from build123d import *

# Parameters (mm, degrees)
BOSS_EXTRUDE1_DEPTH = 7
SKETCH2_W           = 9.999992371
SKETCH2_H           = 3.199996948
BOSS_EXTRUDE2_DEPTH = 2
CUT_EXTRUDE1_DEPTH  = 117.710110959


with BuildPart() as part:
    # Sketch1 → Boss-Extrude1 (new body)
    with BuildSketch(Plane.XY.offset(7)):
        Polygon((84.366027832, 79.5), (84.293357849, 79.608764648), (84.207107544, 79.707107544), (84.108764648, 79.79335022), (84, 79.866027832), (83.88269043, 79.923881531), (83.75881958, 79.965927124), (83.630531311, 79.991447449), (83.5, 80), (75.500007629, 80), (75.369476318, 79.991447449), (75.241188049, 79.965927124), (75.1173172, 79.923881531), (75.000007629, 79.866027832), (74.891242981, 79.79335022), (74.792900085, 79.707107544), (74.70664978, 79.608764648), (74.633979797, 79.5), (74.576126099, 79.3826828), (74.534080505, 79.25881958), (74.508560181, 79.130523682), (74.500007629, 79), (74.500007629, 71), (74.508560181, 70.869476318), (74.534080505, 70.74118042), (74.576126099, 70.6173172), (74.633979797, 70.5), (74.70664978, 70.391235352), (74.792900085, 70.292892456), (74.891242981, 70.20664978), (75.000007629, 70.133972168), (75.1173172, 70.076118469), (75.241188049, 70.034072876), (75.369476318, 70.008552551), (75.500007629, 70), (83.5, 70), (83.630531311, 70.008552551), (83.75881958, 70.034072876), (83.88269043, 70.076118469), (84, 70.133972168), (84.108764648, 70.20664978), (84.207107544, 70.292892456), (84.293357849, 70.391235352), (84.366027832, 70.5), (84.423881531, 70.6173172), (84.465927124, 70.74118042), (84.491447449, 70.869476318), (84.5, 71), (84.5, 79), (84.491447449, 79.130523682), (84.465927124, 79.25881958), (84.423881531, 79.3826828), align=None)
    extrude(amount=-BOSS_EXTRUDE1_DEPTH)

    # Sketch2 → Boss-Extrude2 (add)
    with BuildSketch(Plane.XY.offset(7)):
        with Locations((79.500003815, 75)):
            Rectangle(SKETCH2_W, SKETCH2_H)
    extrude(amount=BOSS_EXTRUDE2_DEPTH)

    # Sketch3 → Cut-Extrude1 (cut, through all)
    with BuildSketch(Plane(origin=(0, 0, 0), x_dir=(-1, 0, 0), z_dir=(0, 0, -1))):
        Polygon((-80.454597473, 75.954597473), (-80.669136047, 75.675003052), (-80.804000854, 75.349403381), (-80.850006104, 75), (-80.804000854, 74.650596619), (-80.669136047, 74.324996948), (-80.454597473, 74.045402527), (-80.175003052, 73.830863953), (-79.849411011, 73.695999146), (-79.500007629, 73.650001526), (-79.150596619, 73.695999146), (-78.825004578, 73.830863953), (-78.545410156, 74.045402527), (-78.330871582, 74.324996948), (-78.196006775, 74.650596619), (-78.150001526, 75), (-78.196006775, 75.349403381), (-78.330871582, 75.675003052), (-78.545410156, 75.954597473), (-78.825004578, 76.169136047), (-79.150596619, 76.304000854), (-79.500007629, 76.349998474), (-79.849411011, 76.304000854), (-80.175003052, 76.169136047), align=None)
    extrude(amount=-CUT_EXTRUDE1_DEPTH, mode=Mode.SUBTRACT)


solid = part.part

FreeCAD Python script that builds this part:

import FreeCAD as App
import Part
import Sketcher
from FreeCAD import Vector

doc = App.newDocument("Part")
params = doc.addObject("Spreadsheet::Sheet", "Params")
for row, (alias, value) in enumerate([
    ("sketch1_height", "8 mm"),
    ("sketch1_height2", "8 mm"),
    ("pad1_length", "7 mm"),
    ("pad2_length", "2 mm"),
], start=1):
    params.set(f"A{row}", alias)
    params.set(f"B{row}", "=" + value)
    params.setAlias(f"B{row}", alias)

body = doc.addObject("PartDesign::Body", "Body")

sketch1 = doc.addObject("Sketcher::SketchObject", "Sketch")
body.addObject(sketch1)
sketch1.AttachmentSupport = (doc.XY_Plane, [""])
sketch1.MapMode = "FlatFace"
sketch1.AttachmentOffset = App.Placement(Vector(0, 0, 7), App.Rotation())
sketch1.addGeometry(Part.LineSegment(Vector(84.366028, 79.5, 0), Vector(84.293358, 79.608765, 0)), False)
sketch1.addGeometry(Part.LineSegment(Vector(84.293358, 79.608765, 0), Vector(84.207108, 79.707108, 0)), False)
sketch1.addGeometry(Part.LineSegment(Vector(84.207108, 79.707108, 0), Vector(84.108765, 79.79335, 0)), False)
sketch1.addGeometry(Part.LineSegment(Vector(84.108765, 79.79335, 0), Vector(84, 79.866028, 0)), False)
sketch1.addGeometry(Part.LineSegment(Vector(84, 79.866028, 0), Vector(83.88269, 79.923882, 0)), False)
sketch1.addGeometry(Part.LineSegment(Vector(83.88269, 79.923882, 0), Vector(83.75882, 79.965927, 0)), False)
sketch1.addGeometry(Part.LineSegment(Vector(83.75882, 79.965927, 0), Vector(83.630531, 79.991447, 0)), False)
sketch1.addGeometry(Part.LineSegment(Vector(83.630531, 79.991447, 0), Vector(83.5, 80, 0)), False)
sketch1.addGeometry(Part.LineSegment(Vector(83.5, 80, 0), Vector(75.500008, 80, 0)), False)
sketch1.addGeometry(Part.LineSegment(Vector(75.500008, 80, 0), Vector(75.369476, 79.991447, 0)), False)
sketch1.addGeometry(Part.LineSegment(Vector(75.369476, 79.991447, 0), Vector(75.241188, 79.965927, 0)), False)
sketch1.addGeometry(Part.LineSegment(Vector(75.241188, 79.965927, 0), Vector(75.117317, 79.923882, 0)), False)
sketch1.addGeometry(Part.LineSegment(Vector(75.117317, 79.923882, 0), Vector(75.000008, 79.866028, 0)), False)
sketch1.addGeometry(Part.LineSegment(Vector(75.000008, 79.866028, 0), Vector(74.891243, 79.79335, 0)), False)
sketch1.addGeometry(Part.LineSegment(Vector(74.891243, 79.79335, 0), Vector(74.7929, 79.707108, 0)), False)
sketch1.addGeometry(Part.LineSegment(Vector(74.7929, 79.707108, 0), Vector(74.70665, 79.608765, 0)), False)
sketch1.addGeometry(Part.LineSegment(Vector(74.70665, 79.608765, 0), Vector(74.63398, 79.5, 0)), False)
sketch1.addGeometry(Part.LineSegment(Vector(74.63398, 79.5, 0), Vector(74.576126, 79.382683, 0)), False)
sketch1.addGeometry(Part.LineSegment(Vector(74.576126, 79.382683, 0), Vector(74.534081, 79.25882, 0)), False)
sketch1.addGeometry(Part.LineSegment(Vector(74.534081, 79.25882, 0), Vector(74.50856, 79.130524, 0)), False)
sketch1.addGeometry(Part.LineSegment(Vector(74.50856, 79.130524, 0), Vector(74.500008, 79, 0)), False)
sketch1.addGeometry(Part.LineSegment(Vector(74.500008, 79, 0), Vector(74.500008, 71, 0)), False)
sketch1.addGeometry(Part.LineSegment(Vector(74.500008, 71, 0), Vector(74.50856, 70.869476, 0)), False)
sketch1.addGeometry(Part.LineSegment(Vector(74.50856, 70.869476, 0), Vector(74.534081, 70.74118, 0)), False)
sketch1.addGeometry(Part.LineSegment(Vector(74.534081, 70.74118, 0), Vector(74.576126, 70.617317, 0)), False)
sketch1.addGeometry(Part.LineSegment(Vector(74.576126, 70.617317, 0), Vector(74.63398, 70.5, 0)), False)
sketch1.addGeometry(Part.LineSegment(Vector(74.63398, 70.5, 0), Vector(74.70665, 70.391235, 0)), False)
sketch1.addGeometry(Part.LineSegment(Vector(74.70665, 70.391235, 0), Vector(74.7929, 70.292892, 0)), False)
sketch1.addGeometry(Part.LineSegment(Vector(74.7929, 70.292892, 0), Vector(74.891243, 70.20665, 0)), False)
sketch1.addGeometry(Part.LineSegment(Vector(74.891243, 70.20665, 0), Vector(75.000008, 70.133972, 0)), False)
sketch1.addGeometry(Part.LineSegment(Vector(75.000008, 70.133972, 0), Vector(75.117317, 70.076118, 0)), False)
sketch1.addGeometry(Part.LineSegment(Vector(75.117317, 70.076118, 0), Vector(75.241188, 70.034073, 0)), False)
sketch1.addGeometry(Part.LineSegment(Vector(75.241188, 70.034073, 0), Vector(75.369476, 70.008553, 0)), False)
sketch1.addGeometry(Part.LineSegment(Vector(75.369476, 70.008553, 0), Vector(75.500008, 70, 0)), False)
sketch1.addGeometry(Part.LineSegment(Vector(75.500008, 70, 0), Vector(83.5, 70, 0)), False)
sketch1.addGeometry(Part.LineSegment(Vector(83.5, 70, 0), Vector(83.630531, 70.008553, 0)), False)
sketch1.addGeometry(Part.LineSegment(Vector(83.630531, 70.008553, 0), Vector(83.75882, 70.034073, 0)), False)
sketch1.addGeometry(Part.LineSegment(Vector(83.75882, 70.034073, 0), Vector(83.88269, 70.076118, 0)), False)
sketch1.addGeometry(Part.LineSegment(Vector(83.88269, 70.076118, 0), Vector(84, 70.133972, 0)), False)
sketch1.addGeometry(Part.LineSegment(Vector(84, 70.133972, 0), Vector(84.108765, 70.20665, 0)), False)
sketch1.addGeometry(Part.LineSegment(Vector(84.108765, 70.20665, 0), Vector(84.207108, 70.292892, 0)), False)
sketch1.addGeometry(Part.LineSegment(Vector(84.207108, 70.292892, 0), Vector(84.293358, 70.391235, 0)), False)
sketch1.addGeometry(Part.LineSegment(Vector(84.293358, 70.391235, 0), Vector(84.366028, 70.5, 0)), False)
sketch1.addGeometry(Part.LineSegment(Vector(84.366028, 70.5, 0), Vector(84.423882, 70.617317, 0)), False)
sketch1.addGeometry(Part.LineSegment(Vector(84.423882, 70.617317, 0), Vector(84.465927, 70.74118, 0)), False)
sketch1.addGeometry(Part.LineSegment(Vector(84.465927, 70.74118, 0), Vector(84.491447, 70.869476, 0)), False)
sketch1.addGeometry(Part.LineSegment(Vector(84.491447, 70.869476, 0), Vector(84.5, 71, 0)), False)
sketch1.addGeometry(Part.LineSegment(Vector(84.5, 71, 0), Vector(84.5, 79, 0)), False)
sketch1.addGeometry(Part.LineSegment(Vector(84.5, 79, 0), Vector(84.491447, 79.130524, 0)), False)
sketch1.addGeometry(Part.LineSegment(Vector(84.491447, 79.130524, 0), Vector(84.465927, 79.25882, 0)), False)
sketch1.addGeometry(Part.LineSegment(Vector(84.465927, 79.25882, 0), Vector(84.423882, 79.382683, 0)), False)
sketch1.addGeometry(Part.LineSegment(Vector(84.423882, 79.382683, 0), Vector(84.366028, 79.5, 0)), False)
sketch1.addConstraint(Sketcher.Constraint("Coincident", 0, 2, 1, 1))
sketch1.addConstraint(Sketcher.Constraint("Coincident", 1, 2, 2, 1))
sketch1.addConstraint(Sketcher.Constraint("Coincident", 2, 2, 3, 1))
sketch1.addConstraint(Sketcher.Constraint("Coincident", 3, 2, 4, 1))
sketch1.addConstraint(Sketcher.Constraint("Coincident", 4, 2, 5, 1))
sketch1.addConstraint(Sketcher.Constraint("Coincident", 5, 2, 6, 1))
sketch1.addConstraint(Sketcher.Constraint("Coincident", 6, 2, 7, 1))
sketch1.addConstraint(Sketcher.Constraint("Coincident", 7, 2, 8, 1))
sketch1.addConstraint(Sketcher.Constraint("Coincident", 8, 2, 9, 1))
sketch1.addConstraint(Sketcher.Constraint("Coincident", 9, 2, 10, 1))
sketch1.addConstraint(Sketcher.Constraint("Coincident", 10, 2, 11, 1))
sketch1.addConstraint(Sketcher.Constraint("Coincident", 11, 2, 12, 1))
sketch1.addConstraint(Sketcher.Constraint("Coincident", 12, 2, 13, 1))
sketch1.addConstraint(Sketcher.Constraint("Coincident", 13, 2, 14, 1))
sketch1.addConstraint(Sketcher.Constraint("Coincident", 14, 2, 15, 1))
sketch1.addConstraint(Sketcher.Constraint("Coincident", 15, 2, 16, 1))
sketch1.addConstraint(Sketcher.Constraint("Coincident", 16, 2, 17, 1))
sketch1.addConstraint(Sketcher.Constraint("Coincident", 17, 2, 18, 1))
sketch1.addConstraint(Sketcher.Constraint("Coincident", 18, 2, 19, 1))
sketch1.addConstraint(Sketcher.Constraint("Coincident", 19, 2, 20, 1))
sketch1.addConstraint(Sketcher.Constraint("Coincident", 20, 2, 21, 1))
sketch1.addConstraint(Sketcher.Constraint("Coincident", 21, 2, 22, 1))
sketch1.addConstraint(Sketcher.Constraint("Coincident", 22, 2, 23, 1))
sketch1.addConstraint(Sketcher.Constraint("Coincident", 23, 2, 24, 1))
sketch1.addConstraint(Sketcher.Constraint("Coincident", 24, 2, 25, 1))
sketch1.addConstraint(Sketcher.Constraint("Coincident", 25, 2, 26, 1))
sketch1.addConstraint(Sketcher.Constraint("Coincident", 26, 2, 27, 1))
sketch1.addConstraint(Sketcher.Constraint("Coincident", 27, 2, 28, 1))
sketch1.addConstraint(Sketcher.Constraint("Coincident", 28, 2, 29, 1))
sketch1.addConstraint(Sketcher.Constraint("Coincident", 29, 2, 30, 1))
sketch1.addConstraint(Sketcher.Constraint("Coincident", 30, 2, 31, 1))
sketch1.addConstraint(Sketcher.Constraint("Coincident", 31, 2, 32, 1))
sketch1.addConstraint(Sketcher.Constraint("Coincident", 32, 2, 33, 1))
sketch1.addConstraint(Sketcher.Constraint("Coincident", 33, 2, 34, 1))
sketch1.addConstraint(Sketcher.Constraint("Coincident", 34, 2, 35, 1))
sketch1.addConstraint(Sketcher.Constraint("Coincident", 35, 2, 36, 1))
sketch1.addConstraint(Sketcher.Constraint("Coincident", 36, 2, 37, 1))
sketch1.addConstraint(Sketcher.Constraint("Coincident", 37, 2, 38, 1))
sketch1.addConstraint(Sketcher.Constraint("Coincident", 38, 2, 39, 1))
sketch1.addConstraint(Sketcher.Constraint("Coincident", 39, 2, 40, 1))
sketch1.addConstraint(Sketcher.Constraint("Coincident", 40, 2, 41, 1))
sketch1.addConstraint(Sketcher.Constraint("Coincident", 41, 2, 42, 1))
sketch1.addConstraint(Sketcher.Constraint("Coincident", 42, 2, 43, 1))
sketch1.addConstraint(Sketcher.Constraint("Coincident", 43, 2, 44, 1))
sketch1.addConstraint(Sketcher.Constraint("Coincident", 44, 2, 45, 1))
sketch1.addConstraint(Sketcher.Constraint("Coincident", 45, 2, 46, 1))
sketch1.addConstraint(Sketcher.Constraint("Coincident", 46, 2, 47, 1))
sketch1.addConstraint(Sketcher.Constraint("Coincident", 47, 2, 48, 1))
sketch1.addConstraint(Sketcher.Constraint("Coincident", 48, 2, 49, 1))
sketch1.addConstraint(Sketcher.Constraint("Coincident", 49, 2, 50, 1))
sketch1.addConstraint(Sketcher.Constraint("Coincident", 50, 2, 51, 1))
sketch1.addConstraint(Sketcher.Constraint("Coincident", 51, 2, 0, 1))
sketch1.addConstraint(Sketcher.Constraint("Horizontal", 8))
sketch1.addConstraint(Sketcher.Constraint("Vertical", 21))
sketch1.addConstraint(Sketcher.Constraint("Horizontal", 34))
sketch1.addConstraint(Sketcher.Constraint("Vertical", 47))
sketch1.addConstraint(Sketcher.Constraint("DistanceY", 21, 2, 21, 1, 8.0))
sketch1.addConstraint(Sketcher.Constraint("DistanceY", 47, 1, 47, 2, 8.0))
sketch1.addConstraint(Sketcher.Constraint("DistanceX", -1, 1, 3, 2, 84.0))
sketch1.addConstraint(Sketcher.Constraint("DistanceY", -1, 1, 7, 2, 80.0))
sketch1.addConstraint(Sketcher.Constraint("DistanceY", -1, 1, 20, 2, 79.0))
sketch1.addConstraint(Sketcher.Constraint("DistanceY", -1, 1, 33, 2, 70.0))
sketch1.addConstraint(Sketcher.Constraint("DistanceX", -1, 1, 38, 2, 84.0))
sketch1.addConstraint(Sketcher.Constraint("DistanceY", -1, 1, 46, 2, 71.0))
sketch1.addConstraint(Sketcher.Constraint("DistanceX", -1, 1, 7, 2, 83.5))
sketch1.addConstraint(Sketcher.Constraint("DistanceY", -1, 1, 16, 2, 79.5))
sketch1.addConstraint(Sketcher.Constraint("DistanceY", -1, 1, 25, 2, 70.5))
sketch1.addConstraint(Sketcher.Constraint("DistanceX", -1, 1, 34, 2, 83.5))
sketch1.addConstraint(Sketcher.Constraint("DistanceY", -1, 1, 42, 2, 70.5))
sketch1.addConstraint(Sketcher.Constraint("DistanceX", -1, 1, 46, 2, 84.5))
sketch1.addConstraint(Sketcher.Constraint("DistanceY", -1, 1, 51, 2, 79.5))
sketch1.addConstraint(Sketcher.Constraint("DistanceX", 12, 2, 8, 2, 0.5))
sketch1.addConstraint(Sketcher.Constraint("DistanceX", 29, 2, 33, 2, 0.5))
sketch1.addConstraint(Sketcher.Constraint("Distance", 2, 0.130802))
sketch1.addConstraint(Sketcher.Constraint("Distance", 4, 0.1308))
sketch1.addConstraint(Sketcher.Constraint("Distance", 12, 0.1308))
sketch1.addConstraint(Sketcher.Constraint("Distance", 14, 0.130802))
sketch1.addConstraint(Sketcher.Constraint("Distance", 28, 0.130802))
sketch1.addConstraint(Sketcher.Constraint("Distance", 30, 0.1308))
sketch1.addConstraint(Sketcher.Constraint("Distance", 38, 0.1308))
sketch1.addConstraint(Sketcher.Constraint("Distance", 40, 0.130802))
sketch1.addConstraint(Sketcher.Constraint("DistanceX", -1, 1, 14, 2, 74.7929))
sketch1.addConstraint(Sketcher.Constraint("DistanceX", -1, 1, 27, 2, 74.7929))
sketch1.addConstraint(Sketcher.Constraint("DistanceY", 3, 2, 5, 2, 0.099899))
sketch1.addConstraint(Sketcher.Constraint("DistanceY", 12, 2, 10, 2, 0.099899))
sketch1.addConstraint(Sketcher.Constraint("DistanceX", 18, 2, 16, 2, 0.099899))
sketch1.addConstraint(Sketcher.Constraint("DistanceX", 23, 2, 25, 2, 0.099899))
sketch1.addConstraint(Sketcher.Constraint("DistanceY", 31, 2, 29, 2, 0.099899))
sketch1.addConstraint(Sketcher.Constraint("DistanceY", 36, 2, 38, 2, 0.099899))
sketch1.addConstraint(Sketcher.Constraint("DistanceX", 42, 2, 44, 2, 0.099899))
sketch1.addConstraint(Sketcher.Constraint("DistanceX", 51, 2, 49, 2, 0.099899))
sketch1.addConstraint(Sketcher.Constraint("Distance", 7, 0.130811))
sketch1.addConstraint(Sketcher.Constraint("Distance", 9, 0.130811))
sketch1.addConstraint(Sketcher.Constraint("Distance", 19, 0.130809))
sketch1.addConstraint(Sketcher.Constraint("Distance", 23, 0.130809))
sketch1.addConstraint(Sketcher.Constraint("Distance", 33, 0.130811))
sketch1.addConstraint(Sketcher.Constraint("Distance", 35, 0.130811))
sketch1.addConstraint(Sketcher.Constraint("Distance", 45, 0.130809))
sketch1.addConstraint(Sketcher.Constraint("Distance", 49, 0.130809))
sketch1.addConstraint(Sketcher.Constraint("DistanceX", 8, 2, 8, 1, 7.999992))
sketch1.addConstraint(Sketcher.Constraint("DistanceX", 34, 1, 34, 2, 7.999992))
sketch1.addConstraint(Sketcher.Constraint("DistanceY", -1, 1, 2, 2, 79.79335))
sketch1.addConstraint(Sketcher.Constraint("DistanceX", -1, 1, 4, 2, 83.88269))
sketch1.addConstraint(Sketcher.Constraint("DistanceY", -1, 1, 4, 2, 79.923882))
sketch1.addConstraint(Sketcher.Constraint("DistanceX", -1, 1, 5, 2, 83.75882))
sketch1.addConstraint(Sketcher.Constraint("DistanceX", -1, 1, 6, 2, 83.630531))
sketch1.addConstraint(Sketcher.Constraint("DistanceX", -1, 1, 10, 2, 75.241188))
sketch1.addConstraint(Sketcher.Constraint("DistanceY", -1, 1, 11, 2, 79.923882))
sketch1.addConstraint(Sketcher.Constraint("DistanceY", -1, 1, 13, 2, 79.79335))
sketch1.addConstraint(Sketcher.Constraint("DistanceX", -1, 1, 15, 2, 74.70665))
sketch1.addConstraint(Sketcher.Constraint("DistanceX", -1, 1, 16, 2, 74.63398))
sketch1.addConstraint(Sketcher.Constraint("DistanceY", -1, 1, 18, 2, 79.25882))
sketch1.addConstraint(Sketcher.Constraint("DistanceX", -1, 1, 19, 2, 74.50856))
sketch1.addConstraint(Sketcher.Constraint("DistanceX", -1, 1, 22, 2, 74.50856))
sketch1.addConstraint(Sketcher.Constraint("DistanceX", -1, 1, 23, 2, 74.534081))
sketch1.addConstraint(Sketcher.Constraint("DistanceY", -1, 1, 23, 2, 70.74118))
sketch1.addConstraint(Sketcher.Constraint("DistanceX", -1, 1, 26, 2, 74.70665))
sketch1.addConstraint(Sketcher.Constraint("DistanceY", -1, 1, 28, 2, 70.20665))
sketch1.addConstraint(Sketcher.Constraint("DistanceY", -1, 1, 30, 2, 70.076118))
sketch1.addConstraint(Sketcher.Constraint("DistanceX", -1, 1, 31, 2, 75.241188))
sketch1.addConstraint(Sketcher.Constraint("DistanceX", -1, 1, 35, 2, 83.630531))
sketch1.addConstraint(Sketcher.Constraint("DistanceX", -1, 1, 36, 2, 83.75882))
sketch1.addConstraint(Sketcher.Constraint("DistanceX", -1, 1, 37, 2, 83.88269))
sketch1.addConstraint(Sketcher.Constraint("DistanceY", -1, 1, 37, 2, 70.076118))
sketch1.addConstraint(Sketcher.Constraint("DistanceY", -1, 1, 39, 2, 70.20665))
sketch1.addConstraint(Sketcher.Constraint("DistanceX", -1, 1, 43, 2, 84.423882))
sketch1.addConstraint(Sketcher.Constraint("DistanceY", -1, 1, 44, 2, 70.74118))
sketch1.addConstraint(Sketcher.Constraint("DistanceY", -1, 1, 49, 2, 79.25882))
sketch1.addConstraint(Sketcher.Constraint("DistanceX", -1, 1, 50, 2, 84.423882))
sketch1.addConstraint(Sketcher.Constraint("DistanceX", 1, 2, 0, 2, 0.08625))
sketch1.addConstraint(Sketcher.Constraint("DistanceY", 1, 2, 3, 2, 0.15892))
sketch1.addConstraint(Sketcher.Constraint("DistanceX", 5, 2, 0, 2, 0.534538))
sketch1.addConstraint(Sketcher.Constraint("DistanceX", 9, 2, 8, 2, 0.130531))
sketch1.addConstraint(Sketcher.Constraint("DistanceY", 10, 2, 9, 2, 0.02552))
sketch1.addConstraint(Sketcher.Constraint("DistanceY", 14, 2, 12, 2, 0.15892))
sketch1.addConstraint(Sketcher.Constraint("DistanceY", 17, 2, 15, 2, 0.226082))
sketch1.addConstraint(Sketcher.Constraint("DistanceX", 17, 2, 12, 2, 0.423882))
sketch1.addConstraint(Sketcher.Constraint("DistanceY", 19, 2, 17, 2, 0.252159))
sketch1.addConstraint(Sketcher.Constraint("DistanceX", 20, 2, 17, 2, 0.076118))
sketch1.addConstraint(Sketcher.Constraint("DistanceY", 24, 2, 22, 2, 0.252159))
sketch1.addConstraint(Sketcher.Constraint("DistanceX", 21, 2, 24, 2, 0.076118))
sketch1.addConstraint(Sketcher.Constraint("DistanceY", 26, 2, 24, 2, 0.226082))
sketch1.addConstraint(Sketcher.Constraint("DistanceY", 29, 2, 27, 2, 0.15892))
sketch1.addConstraint(Sketcher.Constraint("DistanceX", 29, 2, 30, 2, 0.11731))
sketch1.addConstraint(Sketcher.Constraint("DistanceX", 31, 2, 32, 2, 0.128288))
sketch1.addConstraint(Sketcher.Constraint("DistanceY", 38, 2, 40, 2, 0.15892))
sketch1.addConstraint(Sketcher.Constraint("DistanceX", 40, 2, 41, 2, 0.08625))
sketch1.addConstraint(Sketcher.Constraint("DistanceX", 36, 2, 41, 2, 0.534538))
sketch1.addConstraint(Sketcher.Constraint("DistanceX", 41, 2, 42, 2, 0.07267))
sketch1.addConstraint(Sketcher.Constraint("DistanceY", 41, 2, 43, 2, 0.226082))
sketch1.addConstraint(Sketcher.Constraint("DistanceX", 44, 2, 45, 2, 0.02552))
sketch1.addConstraint(Sketcher.Constraint("DistanceY", 43, 2, 45, 2, 0.252159))
sketch1.addConstraint(Sketcher.Constraint("DistanceX", 0, 2, 48, 2, 0.19809))
sketch1.addConstraint(Sketcher.Constraint("DistanceY", 48, 2, 0, 2, 0.478241))
sketch1.addConstraint(Sketcher.Constraint("DistanceX", 49, 2, 48, 2, 0.02552))
sketch1.addConstraint(Sketcher.Constraint("DistanceY", 48, 2, 50, 2, 0.252159))
sketch1.setExpression("Constraints[56]", "Params.sketch1_height")
sketch1.setExpression("Constraints[57]", "Params.sketch1_height2")
pad1 = doc.addObject("PartDesign::Pad", "Pad")
body.addObject(pad1)
pad1.Profile = sketch1
pad1.setExpression("Length", "Params.pad1_length")
pad1.Reversed = True

sketch2 = doc.addObject("Sketcher::SketchObject", "Sketch001")
body.addObject(sketch2)
sketch2.AttachmentSupport = (doc.XY_Plane, [""])
sketch2.MapMode = "FlatFace"
sketch2.AttachmentOffset = App.Placement(Vector(0, 0, 7), App.Rotation())
sketch2.addGeometry(Part.LineSegment(Vector(74.5, 76.6, 0), Vector(74.5, 73.4, 0)), False)
sketch2.addGeometry(Part.LineSegment(Vector(74.5, 73.4, 0), Vector(84.5, 73.4, 0)), False)
sketch2.addGeometry(Part.LineSegment(Vector(84.5, 73.4, 0), Vector(84.5, 76.6, 0)), False)
sketch2.addGeometry(Part.LineSegment(Vector(84.5, 76.6, 0), Vector(74.5, 76.6, 0)), False)
sketch2.addConstraint(Sketcher.Constraint("Coincident", 0, 2, 1, 1))
sketch2.addConstraint(Sketcher.Constraint("Coincident", 1, 2, 2, 1))
sketch2.addConstraint(Sketcher.Constraint("Coincident", 2, 2, 3, 1))
sketch2.addConstraint(Sketcher.Constraint("Coincident", 3, 2, 0, 1))
sketch2.addConstraint(Sketcher.Constraint("Vertical", 0))
sketch2.addConstraint(Sketcher.Constraint("Horizontal", 1))
sketch2.addConstraint(Sketcher.Constraint("Vertical", 2))
sketch2.addConstraint(Sketcher.Constraint("Horizontal", 3))
sketch2.addConstraint(Sketcher.Constraint("DistanceY", -1, 1, 0, 2, 73.400002))
sketch2.addConstraint(Sketcher.Constraint("DistanceX", -1, 1, 1, 2, 84.5))
sketch2.addConstraint(Sketcher.Constraint("DistanceY", -1, 1, 2, 2, 76.599998))
sketch2.addConstraint(Sketcher.Constraint("DistanceX", 1, 1, 1, 2, 9.999992))
pad2 = doc.addObject("PartDesign::Pad", "Pad001")
body.addObject(pad2)
pad2.Profile = sketch2
pad2.setExpression("Length", "Params.pad2_length")

sketch3 = doc.addObject("Sketcher::SketchObject", "Sketch002")
body.addObject(sketch3)
sketch3.AttachmentSupport = (doc.XY_Plane, [""])
sketch3.MapMode = "FlatFace"
sketch3.addGeometry(Part.LineSegment(Vector(80.45, 75.95, 0), Vector(80.67, 75.68, 0)), False)
sketch3.addGeometry(Part.LineSegment(Vector(80.67, 75.68, 0), Vector(80.8, 75.35, 0)), False)
sketch3.addGeometry(Part.LineSegment(Vector(80.8, 75.35, 0), Vector(80.85, 75, 0)), False)
sketch3.addGeometry(Part.LineSegment(Vector(80.85, 75, 0), Vector(80.8, 74.65, 0)), False)
sketch3.addGeometry(Part.LineSegment(Vector(80.8, 74.65, 0), Vector(80.67, 74.32, 0)), False)
sketch3.addGeometry(Part.LineSegment(Vector(80.67, 74.32, 0), Vector(80.45, 74.05, 0)), False)
sketch3.addGeometry(Part.LineSegment(Vector(80.45, 74.05, 0), Vector(80.18, 73.83, 0)), False)
sketch3.addGeometry(Part.LineSegment(Vector(80.18, 73.83, 0), Vector(79.85, 73.7, 0)), False)
sketch3.addGeometry(Part.LineSegment(Vector(79.85, 73.7, 0), Vector(79.5, 73.65, 0)), False)
sketch3.addGeometry(Part.LineSegment(Vector(79.5, 73.65, 0), Vector(79.15, 73.7, 0)), False)
sketch3.addGeometry(Part.LineSegment(Vector(79.15, 73.7, 0), Vector(78.83, 73.83, 0)), False)
sketch3.addGeometry(Part.LineSegment(Vector(78.83, 73.83, 0), Vector(78.55, 74.05, 0)), False)
sketch3.addGeometry(Part.LineSegment(Vector(78.55, 74.05, 0), Vector(78.33, 74.32, 0)), False)
sketch3.addGeometry(Part.LineSegment(Vector(78.33, 74.32, 0), Vector(78.2, 74.65, 0)), False)
sketch3.addGeometry(Part.LineSegment(Vector(78.2, 74.65, 0), Vector(78.15, 75, 0)), False)
sketch3.addGeometry(Part.LineSegment(Vector(78.15, 75, 0), Vector(78.2, 75.35, 0)), False)
sketch3.addGeometry(Part.LineSegment(Vector(78.2, 75.35, 0), Vector(78.33, 75.68, 0)), False)
sketch3.addGeometry(Part.LineSegment(Vector(78.33, 75.68, 0), Vector(78.55, 75.95, 0)), False)
sketch3.addGeometry(Part.LineSegment(Vector(78.55, 75.95, 0), Vector(78.83, 76.17, 0)), False)
sketch3.addGeometry(Part.LineSegment(Vector(78.83, 76.17, 0), Vector(79.15, 76.3, 0)), False)
sketch3.addGeometry(Part.LineSegment(Vector(79.15, 76.3, 0), Vector(79.5, 76.35, 0)), False)
sketch3.addGeometry(Part.LineSegment(Vector(79.5, 76.35, 0), Vector(79.85, 76.3, 0)), False)
sketch3.addGeometry(Part.LineSegment(Vector(79.85, 76.3, 0), Vector(80.18, 76.17, 0)), False)
sketch3.addGeometry(Part.LineSegment(Vector(80.18, 76.17, 0), Vector(80.45, 75.95, 0)), False)
sketch3.addConstraint(Sketcher.Constraint("Coincident", 0, 2, 1, 1))
sketch3.addConstraint(Sketcher.Constraint("Coincident", 1, 2, 2, 1))
sketch3.addConstraint(Sketcher.Constraint("Coincident", 2, 2, 3, 1))
sketch3.addConstraint(Sketcher.Constraint("Coincident", 3, 2, 4, 1))
sketch3.addConstraint(Sketcher.Constraint("Coincident", 4, 2, 5, 1))
sketch3.addConstraint(Sketcher.Constraint("Coincident", 5, 2, 6, 1))
sketch3.addConstraint(Sketcher.Constraint("Coincident", 6, 2, 7, 1))
sketch3.addConstraint(Sketcher.Constraint("Coincident", 7, 2, 8, 1))
sketch3.addConstraint(Sketcher.Constraint("Coincident", 8, 2, 9, 1))
sketch3.addConstraint(Sketcher.Constraint("Coincident", 9, 2, 10, 1))
sketch3.addConstraint(Sketcher.Constraint("Coincident", 10, 2, 11, 1))
sketch3.addConstraint(Sketcher.Constraint("Coincident", 11, 2, 12, 1))
sketch3.addConstraint(Sketcher.Constraint("Coincident", 12, 2, 13, 1))
sketch3.addConstraint(Sketcher.Constraint("Coincident", 13, 2, 14, 1))
sketch3.addConstraint(Sketcher.Constraint("Coincident", 14, 2, 15, 1))
sketch3.addConstraint(Sketcher.Constraint("Coincident", 15, 2, 16, 1))
sketch3.addConstraint(Sketcher.Constraint("Coincident", 16, 2, 17, 1))
sketch3.addConstraint(Sketcher.Constraint("Coincident", 17, 2, 18, 1))
sketch3.addConstraint(Sketcher.Constraint("Coincident", 18, 2, 19, 1))
sketch3.addConstraint(Sketcher.Constraint("Coincident", 19, 2, 20, 1))
sketch3.addConstraint(Sketcher.Constraint("Coincident", 20, 2, 21, 1))
sketch3.addConstraint(Sketcher.Constraint("Coincident", 21, 2, 22, 1))
sketch3.addConstraint(Sketcher.Constraint("Coincident", 22, 2, 23, 1))
sketch3.addConstraint(Sketcher.Constraint("Coincident", 23, 2, 0, 1))
sketch3.addConstraint(Sketcher.Constraint("Perpendicular", 0, 6))
sketch3.addConstraint(Sketcher.Constraint("Perpendicular", 5, 11))
sketch3.addConstraint(Sketcher.Constraint("Perpendicular", 6, 12))
sketch3.addConstraint(Sketcher.Constraint("Parallel", 1, 13))
sketch3.addConstraint(Sketcher.Constraint("Parallel", 2, 14))
sketch3.addConstraint(Sketcher.Constraint("Parallel", 3, 15))
sketch3.addConstraint(Sketcher.Constraint("Parallel", 4, 16))
sketch3.addConstraint(Sketcher.Constraint("Perpendicular", 11, 17))
sketch3.addConstraint(Sketcher.Constraint("Perpendicular", 12, 18))
sketch3.addConstraint(Sketcher.Constraint("Parallel", 7, 19))
sketch3.addConstraint(Sketcher.Constraint("Parallel", 10, 22))
sketch3.addConstraint(Sketcher.Constraint("Perpendicular", 17, 23))
sketch3.addConstraint(Sketcher.Constraint("Horizontal", 7, 2, 9, 2))
sketch3.addConstraint(Sketcher.Constraint("Horizontal", 6, 2, 10, 2))
sketch3.addConstraint(Sketcher.Constraint("Horizontal", 5, 2, 11, 2))
sketch3.addConstraint(Sketcher.Constraint("Horizontal", 4, 2, 12, 2))
sketch3.addConstraint(Sketcher.Constraint("Horizontal", 3, 2, 13, 2))
sketch3.addConstraint(Sketcher.Constraint("Horizontal", 2, 2, 14, 2))
sketch3.addConstraint(Sketcher.Constraint("Horizontal", 1, 2, 15, 2))
sketch3.addConstraint(Sketcher.Constraint("Horizontal", 0, 2, 16, 2))
sketch3.addConstraint(Sketcher.Constraint("Horizontal", 19, 2, 21, 2))
sketch3.addConstraint(Sketcher.Constraint("Horizontal", 18, 2, 22, 2))
sketch3.addConstraint(Sketcher.Constraint("Horizontal", 17, 2, 23, 2))
sketch3.addConstraint(Sketcher.Constraint("Vertical", 1, 2, 3, 2))
sketch3.addConstraint(Sketcher.Constraint("Vertical", 0, 2, 4, 2))
sketch3.addConstraint(Sketcher.Constraint("Vertical", 13, 2, 15, 2))
sketch3.addConstraint(Sketcher.Constraint("Vertical", 12, 2, 16, 2))
sketch3.addConstraint(Sketcher.Constraint("Vertical", 11, 2, 17, 2))
sketch3.addConstraint(Sketcher.Constraint("Vertical", 10, 2, 18, 2))
sketch3.addConstraint(Sketcher.Constraint("Vertical", 9, 2, 19, 2))
sketch3.addConstraint(Sketcher.Constraint("Vertical", 8, 2, 20, 2))
sketch3.addConstraint(Sketcher.Constraint("Vertical", 7, 2, 21, 2))
sketch3.addConstraint(Sketcher.Constraint("Vertical", 6, 2, 22, 2))
sketch3.addConstraint(Sketcher.Constraint("Equal", 0, 2))
sketch3.addConstraint(Sketcher.Constraint("Equal", 5, 6))
sketch3.addConstraint(Sketcher.Constraint("Equal", 6, 7))
sketch3.addConstraint(Sketcher.Constraint("Equal", 7, 8))
sketch3.addConstraint(Sketcher.Constraint("Equal", 4, 9))
sketch3.addConstraint(Sketcher.Constraint("Equal", 16, 20))
sketch3.addConstraint(Sketcher.Constraint("DistanceY", -1, 1, 2, 2, 75.0))
sketch3.addConstraint(Sketcher.Constraint("DistanceY", -1, 1, 8, 2, 73.650002))
sketch3.addConstraint(Sketcher.Constraint("DistanceX", -1, 1, 14, 2, 78.150002))
sketch3.addConstraint(Sketcher.Constraint("DistanceX", 10, 2, 6, 2, 1.349998))
sketch3.addConstraint(Sketcher.Constraint("DistanceX", -1, 1, 1, 2, 80.804001))
sketch3.addConstraint(Sketcher.Constraint("DistanceY", -1, 1, 7, 2, 73.695999))
sketch3.addConstraint(Sketcher.Constraint("DistanceY", 5, 2, 1, 2, 1.304001))
sketch3.addConstraint(Sketcher.Constraint("DistanceX", 9, 2, 5, 2, 1.304001))
sketch3.addConstraint(Sketcher.Constraint("DistanceX", 13, 2, 8, 2, 1.304001))
pocket1 = doc.addObject("PartDesign::Pocket", "Pocket")
body.addObject(pocket1)
pocket1.Profile = sketch3
pocket1.Type = "ThroughAll"
pocket1.Reversed = True

doc.recompute()
